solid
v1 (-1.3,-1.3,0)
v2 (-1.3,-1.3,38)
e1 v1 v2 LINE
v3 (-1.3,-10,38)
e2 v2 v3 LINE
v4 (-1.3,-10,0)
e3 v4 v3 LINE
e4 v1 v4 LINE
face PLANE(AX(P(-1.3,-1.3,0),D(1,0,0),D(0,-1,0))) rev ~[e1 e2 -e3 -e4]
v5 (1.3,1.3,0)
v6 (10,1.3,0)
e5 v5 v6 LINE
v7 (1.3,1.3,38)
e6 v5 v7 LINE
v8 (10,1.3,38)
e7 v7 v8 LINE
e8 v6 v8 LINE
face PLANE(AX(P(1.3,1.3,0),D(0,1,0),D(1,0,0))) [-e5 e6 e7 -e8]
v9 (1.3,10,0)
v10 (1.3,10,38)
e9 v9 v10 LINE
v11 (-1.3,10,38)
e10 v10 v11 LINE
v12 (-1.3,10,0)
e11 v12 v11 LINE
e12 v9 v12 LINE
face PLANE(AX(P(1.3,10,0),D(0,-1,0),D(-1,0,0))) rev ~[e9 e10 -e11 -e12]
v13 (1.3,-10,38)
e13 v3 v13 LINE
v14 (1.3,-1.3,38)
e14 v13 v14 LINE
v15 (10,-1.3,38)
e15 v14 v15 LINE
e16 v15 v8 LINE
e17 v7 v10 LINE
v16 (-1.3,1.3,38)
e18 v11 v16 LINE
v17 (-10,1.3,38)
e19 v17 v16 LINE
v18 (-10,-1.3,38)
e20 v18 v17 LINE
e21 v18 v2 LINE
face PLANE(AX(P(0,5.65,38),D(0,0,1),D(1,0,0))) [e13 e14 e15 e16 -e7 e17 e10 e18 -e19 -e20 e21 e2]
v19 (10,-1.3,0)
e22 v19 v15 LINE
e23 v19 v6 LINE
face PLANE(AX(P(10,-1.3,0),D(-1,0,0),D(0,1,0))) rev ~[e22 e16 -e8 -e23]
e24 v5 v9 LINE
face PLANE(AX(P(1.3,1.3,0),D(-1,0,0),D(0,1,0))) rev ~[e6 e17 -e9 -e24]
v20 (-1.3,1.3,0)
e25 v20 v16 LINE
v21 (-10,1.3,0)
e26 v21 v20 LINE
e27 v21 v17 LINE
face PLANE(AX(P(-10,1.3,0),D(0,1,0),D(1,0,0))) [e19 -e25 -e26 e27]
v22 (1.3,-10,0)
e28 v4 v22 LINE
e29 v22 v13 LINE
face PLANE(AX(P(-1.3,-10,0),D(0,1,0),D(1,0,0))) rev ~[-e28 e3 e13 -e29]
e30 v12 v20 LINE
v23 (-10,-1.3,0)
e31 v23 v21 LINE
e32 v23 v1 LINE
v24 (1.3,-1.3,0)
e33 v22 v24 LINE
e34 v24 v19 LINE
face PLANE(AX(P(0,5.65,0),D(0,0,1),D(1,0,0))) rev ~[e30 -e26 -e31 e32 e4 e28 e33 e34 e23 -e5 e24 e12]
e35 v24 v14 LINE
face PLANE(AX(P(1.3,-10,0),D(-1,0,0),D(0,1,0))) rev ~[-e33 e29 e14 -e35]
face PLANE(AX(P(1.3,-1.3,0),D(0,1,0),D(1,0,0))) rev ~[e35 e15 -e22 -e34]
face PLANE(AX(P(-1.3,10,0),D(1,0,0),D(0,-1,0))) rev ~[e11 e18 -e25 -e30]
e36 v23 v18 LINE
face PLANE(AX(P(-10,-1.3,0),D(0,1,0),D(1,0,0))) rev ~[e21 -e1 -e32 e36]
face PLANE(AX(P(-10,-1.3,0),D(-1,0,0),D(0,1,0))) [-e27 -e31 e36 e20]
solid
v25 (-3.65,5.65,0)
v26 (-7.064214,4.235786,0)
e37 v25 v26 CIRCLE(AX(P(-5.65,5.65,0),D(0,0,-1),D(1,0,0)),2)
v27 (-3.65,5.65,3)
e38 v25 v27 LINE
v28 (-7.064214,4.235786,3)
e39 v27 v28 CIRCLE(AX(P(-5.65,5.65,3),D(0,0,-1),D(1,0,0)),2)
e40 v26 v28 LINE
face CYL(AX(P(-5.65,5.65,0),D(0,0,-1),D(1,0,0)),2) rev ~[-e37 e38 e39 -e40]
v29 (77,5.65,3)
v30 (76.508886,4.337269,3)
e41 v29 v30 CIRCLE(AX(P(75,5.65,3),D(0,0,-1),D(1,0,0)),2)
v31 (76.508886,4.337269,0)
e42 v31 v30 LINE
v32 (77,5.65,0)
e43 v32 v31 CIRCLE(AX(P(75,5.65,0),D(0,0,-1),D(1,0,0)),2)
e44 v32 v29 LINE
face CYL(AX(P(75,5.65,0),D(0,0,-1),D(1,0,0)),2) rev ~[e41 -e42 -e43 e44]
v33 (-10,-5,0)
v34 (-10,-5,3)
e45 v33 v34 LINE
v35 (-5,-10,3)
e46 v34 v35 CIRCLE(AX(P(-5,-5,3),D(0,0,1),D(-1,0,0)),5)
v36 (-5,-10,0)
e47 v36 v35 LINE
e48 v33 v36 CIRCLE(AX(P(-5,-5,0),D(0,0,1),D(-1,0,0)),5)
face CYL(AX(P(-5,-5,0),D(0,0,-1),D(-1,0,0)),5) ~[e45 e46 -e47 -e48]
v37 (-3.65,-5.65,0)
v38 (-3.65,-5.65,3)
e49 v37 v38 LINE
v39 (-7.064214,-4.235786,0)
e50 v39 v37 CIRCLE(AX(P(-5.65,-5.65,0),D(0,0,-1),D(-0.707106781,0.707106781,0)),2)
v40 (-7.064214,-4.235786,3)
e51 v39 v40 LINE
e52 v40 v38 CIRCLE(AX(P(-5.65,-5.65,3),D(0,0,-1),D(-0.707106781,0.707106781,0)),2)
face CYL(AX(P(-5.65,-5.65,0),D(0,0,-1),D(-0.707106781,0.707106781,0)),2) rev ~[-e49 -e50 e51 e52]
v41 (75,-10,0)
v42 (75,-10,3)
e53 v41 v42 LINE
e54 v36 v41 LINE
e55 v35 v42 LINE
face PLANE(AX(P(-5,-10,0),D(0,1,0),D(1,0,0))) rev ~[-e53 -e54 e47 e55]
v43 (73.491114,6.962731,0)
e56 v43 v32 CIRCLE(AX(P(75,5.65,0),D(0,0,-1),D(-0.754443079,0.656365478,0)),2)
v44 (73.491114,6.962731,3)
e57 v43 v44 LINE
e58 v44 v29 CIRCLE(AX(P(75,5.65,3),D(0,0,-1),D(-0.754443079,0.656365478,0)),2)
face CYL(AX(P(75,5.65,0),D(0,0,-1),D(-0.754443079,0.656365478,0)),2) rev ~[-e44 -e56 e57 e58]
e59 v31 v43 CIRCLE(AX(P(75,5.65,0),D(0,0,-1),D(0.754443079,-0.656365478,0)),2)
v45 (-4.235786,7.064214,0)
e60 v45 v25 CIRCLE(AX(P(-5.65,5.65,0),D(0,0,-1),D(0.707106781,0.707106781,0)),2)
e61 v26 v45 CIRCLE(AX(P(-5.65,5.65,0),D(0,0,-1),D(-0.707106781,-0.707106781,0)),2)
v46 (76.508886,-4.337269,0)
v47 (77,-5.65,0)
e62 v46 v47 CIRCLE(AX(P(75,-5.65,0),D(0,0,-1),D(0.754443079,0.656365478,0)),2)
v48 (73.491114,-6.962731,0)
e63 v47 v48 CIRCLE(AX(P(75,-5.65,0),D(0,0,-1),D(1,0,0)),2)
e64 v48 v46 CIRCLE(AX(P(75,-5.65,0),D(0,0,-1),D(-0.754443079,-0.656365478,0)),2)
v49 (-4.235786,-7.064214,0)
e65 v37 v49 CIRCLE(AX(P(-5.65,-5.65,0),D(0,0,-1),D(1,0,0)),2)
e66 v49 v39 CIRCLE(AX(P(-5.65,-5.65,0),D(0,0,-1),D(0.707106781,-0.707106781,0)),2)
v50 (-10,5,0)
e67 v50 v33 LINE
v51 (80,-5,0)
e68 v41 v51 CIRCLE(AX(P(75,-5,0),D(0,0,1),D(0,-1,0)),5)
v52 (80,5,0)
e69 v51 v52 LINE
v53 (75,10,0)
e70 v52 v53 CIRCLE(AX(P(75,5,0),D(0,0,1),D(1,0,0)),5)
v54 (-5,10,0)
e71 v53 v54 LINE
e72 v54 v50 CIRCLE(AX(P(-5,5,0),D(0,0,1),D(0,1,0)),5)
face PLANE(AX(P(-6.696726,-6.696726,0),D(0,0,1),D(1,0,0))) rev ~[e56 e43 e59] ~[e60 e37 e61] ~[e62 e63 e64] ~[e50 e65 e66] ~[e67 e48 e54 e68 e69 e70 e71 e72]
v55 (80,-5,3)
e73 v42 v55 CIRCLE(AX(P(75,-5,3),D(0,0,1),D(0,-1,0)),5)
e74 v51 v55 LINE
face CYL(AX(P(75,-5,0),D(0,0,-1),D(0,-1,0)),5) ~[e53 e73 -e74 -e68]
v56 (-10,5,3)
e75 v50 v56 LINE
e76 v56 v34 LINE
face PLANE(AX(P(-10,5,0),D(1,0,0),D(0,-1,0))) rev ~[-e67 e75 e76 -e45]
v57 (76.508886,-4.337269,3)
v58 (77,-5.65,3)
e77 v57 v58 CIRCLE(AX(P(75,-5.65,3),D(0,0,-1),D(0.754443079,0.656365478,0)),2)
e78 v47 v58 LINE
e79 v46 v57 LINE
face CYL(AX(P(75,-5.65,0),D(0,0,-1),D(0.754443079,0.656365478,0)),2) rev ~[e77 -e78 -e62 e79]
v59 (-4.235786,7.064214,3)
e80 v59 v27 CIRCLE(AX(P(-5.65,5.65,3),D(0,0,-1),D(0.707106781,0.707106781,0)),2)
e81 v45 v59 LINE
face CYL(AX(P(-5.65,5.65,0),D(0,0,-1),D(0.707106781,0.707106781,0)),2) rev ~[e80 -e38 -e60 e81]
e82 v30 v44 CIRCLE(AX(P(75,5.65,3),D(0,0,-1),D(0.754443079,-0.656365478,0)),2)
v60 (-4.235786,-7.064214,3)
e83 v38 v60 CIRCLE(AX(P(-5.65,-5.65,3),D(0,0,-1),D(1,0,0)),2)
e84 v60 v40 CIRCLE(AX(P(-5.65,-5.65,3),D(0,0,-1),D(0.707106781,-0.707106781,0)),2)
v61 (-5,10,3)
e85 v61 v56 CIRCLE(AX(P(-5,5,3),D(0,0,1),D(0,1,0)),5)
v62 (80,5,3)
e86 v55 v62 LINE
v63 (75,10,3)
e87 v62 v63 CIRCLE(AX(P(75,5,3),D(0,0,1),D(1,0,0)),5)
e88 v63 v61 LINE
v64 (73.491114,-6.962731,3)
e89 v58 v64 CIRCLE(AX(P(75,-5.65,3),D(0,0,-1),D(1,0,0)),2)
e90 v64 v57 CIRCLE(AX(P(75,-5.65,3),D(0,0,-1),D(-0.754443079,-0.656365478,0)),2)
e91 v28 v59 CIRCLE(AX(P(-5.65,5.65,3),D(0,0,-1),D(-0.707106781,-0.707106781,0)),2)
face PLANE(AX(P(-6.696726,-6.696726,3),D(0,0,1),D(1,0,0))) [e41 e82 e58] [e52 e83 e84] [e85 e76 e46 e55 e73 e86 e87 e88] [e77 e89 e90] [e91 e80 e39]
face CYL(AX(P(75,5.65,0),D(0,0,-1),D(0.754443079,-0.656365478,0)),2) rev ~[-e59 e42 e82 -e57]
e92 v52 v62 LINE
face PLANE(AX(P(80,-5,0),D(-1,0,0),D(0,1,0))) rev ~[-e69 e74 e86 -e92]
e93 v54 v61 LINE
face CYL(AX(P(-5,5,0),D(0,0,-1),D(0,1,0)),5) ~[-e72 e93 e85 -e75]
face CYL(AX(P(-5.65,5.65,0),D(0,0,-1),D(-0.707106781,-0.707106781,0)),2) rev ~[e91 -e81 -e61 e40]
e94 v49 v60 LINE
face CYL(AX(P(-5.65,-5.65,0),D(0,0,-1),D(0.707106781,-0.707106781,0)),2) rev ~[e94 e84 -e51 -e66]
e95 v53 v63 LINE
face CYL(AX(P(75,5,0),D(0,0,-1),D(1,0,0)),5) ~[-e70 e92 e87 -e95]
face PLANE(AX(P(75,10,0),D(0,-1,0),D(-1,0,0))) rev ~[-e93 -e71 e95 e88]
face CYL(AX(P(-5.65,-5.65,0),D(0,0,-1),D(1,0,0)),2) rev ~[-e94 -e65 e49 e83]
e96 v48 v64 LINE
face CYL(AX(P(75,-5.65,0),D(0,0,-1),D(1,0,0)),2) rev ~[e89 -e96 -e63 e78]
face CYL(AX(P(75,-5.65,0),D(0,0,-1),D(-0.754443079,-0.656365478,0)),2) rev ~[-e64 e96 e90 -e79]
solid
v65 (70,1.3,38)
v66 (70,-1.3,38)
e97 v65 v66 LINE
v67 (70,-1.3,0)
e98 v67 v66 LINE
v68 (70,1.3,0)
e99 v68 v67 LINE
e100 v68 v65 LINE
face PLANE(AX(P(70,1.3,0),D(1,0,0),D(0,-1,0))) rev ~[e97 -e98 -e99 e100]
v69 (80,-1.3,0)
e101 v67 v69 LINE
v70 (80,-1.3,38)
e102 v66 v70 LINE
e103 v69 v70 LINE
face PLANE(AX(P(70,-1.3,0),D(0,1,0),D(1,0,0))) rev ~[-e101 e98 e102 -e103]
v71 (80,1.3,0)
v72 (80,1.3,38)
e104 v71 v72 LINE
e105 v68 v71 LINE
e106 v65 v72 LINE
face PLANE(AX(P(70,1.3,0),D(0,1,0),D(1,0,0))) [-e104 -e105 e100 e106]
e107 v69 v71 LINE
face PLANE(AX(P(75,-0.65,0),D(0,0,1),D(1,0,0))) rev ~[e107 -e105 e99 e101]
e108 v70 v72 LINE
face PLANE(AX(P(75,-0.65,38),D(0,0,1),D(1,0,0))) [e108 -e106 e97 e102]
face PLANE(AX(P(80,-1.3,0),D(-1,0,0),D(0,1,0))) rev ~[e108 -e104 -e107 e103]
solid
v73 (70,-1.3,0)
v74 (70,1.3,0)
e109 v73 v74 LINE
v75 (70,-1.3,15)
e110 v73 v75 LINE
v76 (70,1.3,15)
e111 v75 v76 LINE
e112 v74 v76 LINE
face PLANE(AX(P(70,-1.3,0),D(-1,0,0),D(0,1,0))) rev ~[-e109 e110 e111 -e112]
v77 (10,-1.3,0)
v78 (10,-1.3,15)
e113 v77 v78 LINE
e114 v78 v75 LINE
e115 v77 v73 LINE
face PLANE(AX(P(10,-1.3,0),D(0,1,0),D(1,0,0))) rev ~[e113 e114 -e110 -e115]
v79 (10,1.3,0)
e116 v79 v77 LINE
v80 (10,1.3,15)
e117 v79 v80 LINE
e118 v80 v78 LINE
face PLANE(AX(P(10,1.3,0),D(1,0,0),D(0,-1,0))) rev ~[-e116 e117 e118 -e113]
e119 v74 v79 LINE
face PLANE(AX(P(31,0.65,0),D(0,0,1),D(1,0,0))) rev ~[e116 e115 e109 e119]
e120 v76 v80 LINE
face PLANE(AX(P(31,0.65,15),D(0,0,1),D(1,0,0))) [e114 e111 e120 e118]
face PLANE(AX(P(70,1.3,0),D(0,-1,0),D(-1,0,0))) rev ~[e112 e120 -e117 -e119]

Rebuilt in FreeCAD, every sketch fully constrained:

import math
import FreeCAD as App
import Part
import Sketcher

V = App.Vector

doc = App.newDocument("Part")
body = doc.addObject("PartDesign::Body", "Body")

sketch1 = body.newObject("Sketcher::SketchObject", "Sketch")
sketch1.AttachmentSupport = (doc.getObject("XY_Plane"), [""])
sketch1.MapMode = "FlatFace"
sketch1.addGeometry([
    Part.LineSegment(V(70, -1.3, 0), V(80, -1.3, 0)),
    Part.LineSegment(V(80, -1.3, 0), V(80, 1.3, 0)),
    Part.LineSegment(V(80, 1.3, 0), V(70, 1.3, 0)),
    Part.LineSegment(V(70, 1.3, 0), V(70, -1.3, 0)),
], False)
sketch1.addConstraint([
    Sketcher.Constraint("Coincident", 0, 2, 1, 1),
    Sketcher.Constraint("Coincident", 1, 2, 2, 1),
    Sketcher.Constraint("Coincident", 2, 2, 3, 1),
    Sketcher.Constraint("Coincident", 3, 2, 0, 1),
    Sketcher.Constraint("Horizontal", 0),
    Sketcher.Constraint("Vertical", 1),
    Sketcher.Constraint("Horizontal", 2),
    Sketcher.Constraint("Vertical", 3),
    Sketcher.Constraint("DistanceX", 0, 1, 0, 2, 10.0),
    Sketcher.Constraint("DistanceY", 1, 1, 1, 2, 2.6),
    Sketcher.Constraint("DistanceX", -1, 1, 0, 2, 80.0),
    Sketcher.Constraint("DistanceY", 0, 2, -1, 1, 1.3),
])
pad1 = body.newObject("PartDesign::Pad", "Pad")
pad1.Profile = sketch1
pad1.Length = 38
body2 = doc.addObject("PartDesign::Body", "Body001")

sketch2 = body2.newObject("Sketcher::SketchObject", "Sketch001")
sketch2.AttachmentSupport = (doc.getObject("XY_Plane001"), [""])
sketch2.MapMode = "FlatFace"
sketch2.addGeometry([
    Part.LineSegment(V(1.3, 1.3, 0), V(1.3, 10, 0)),
    Part.LineSegment(V(1.3, 10, 0), V(-1.3, 10, 0)),
    Part.LineSegment(V(-1.3, 10, 0), V(-1.3, 1.3, 0)),
    Part.LineSegment(V(-1.3, 1.3, 0), V(-10, 1.3, 0)),
    Part.LineSegment(V(-10, 1.3, 0), V(-10, -1.3, 0)),
    Part.LineSegment(V(-10, -1.3, 0), V(-1.3, -1.3, 0)),
    Part.LineSegment(V(-1.3, -1.3, 0), V(-1.3, -10, 0)),
    Part.LineSegment(V(-1.3, -10, 0), V(1.3, -10, 0)),
    Part.LineSegment(V(1.3, -10, 0), V(1.3, -1.3, 0)),
    Part.LineSegment(V(1.3, -1.3, 0), V(10, -1.3, 0)),
    Part.LineSegment(V(10, -1.3, 0), V(10, 1.3, 0)),
    Part.LineSegment(V(10, 1.3, 0), V(1.3, 1.3, 0)),
], False)
sketch2.addConstraint([
    Sketcher.Constraint("Coincident", 0, 2, 1, 1),
    Sketcher.Constraint("Coincident", 1, 2, 2, 1),
    Sketcher.Constraint("Coincident", 2, 2, 3, 1),
    Sketcher.Constraint("Coincident", 3, 2, 4, 1),
    Sketcher.Constraint("Coincident", 4, 2, 5, 1),
    Sketcher.Constraint("Coincident", 5, 2, 6, 1),
    Sketcher.Constraint("Coincident", 6, 2, 7, 1),
    Sketcher.Constraint("Coincident", 7, 2, 8, 1),
    Sketcher.Constraint("Coincident", 8, 2, 9, 1),
    Sketcher.Constraint("Coincident", 9, 2, 10, 1),
    Sketcher.Constraint("Coincident", 10, 2, 11, 1),
    Sketcher.Constraint("Coincident", 11, 2, 0, 1),
    Sketcher.Constraint("Vertical", 0),
    Sketcher.Constraint("Horizontal", 1),
    Sketcher.Constraint("Vertical", 2),
    Sketcher.Constraint("Horizontal", 3),
    Sketcher.Constraint("Vertical", 4),
    Sketcher.Constraint("Horizontal", 5),
    Sketcher.Constraint("Vertical", 6),
    Sketcher.Constraint("Horizontal", 7),
    Sketcher.Constraint("Vertical", 8),
    Sketcher.Constraint("Horizontal", 9),
    Sketcher.Constraint("Vertical", 10),
    Sketcher.Constraint("Horizontal", 11),
    Sketcher.Constraint("Symmetric", 0, 2, 6, 2, -1, 1),
    Sketcher.Constraint("Symmetric", 2, 2, 8, 2, -1, 1),
    Sketcher.Constraint("Symmetric", 4, 2, 10, 2, -1, 1),
    Sketcher.Constraint("Symmetric", 5, 2, 8, 2, -2),
    Sketcher.Constraint("Equal", 11, 0),
    Sketcher.Constraint("Equal", 7, 4),
    Sketcher.Constraint("DistanceX", 1, 2, 1, 1, 2.6),
    Sketcher.Constraint("DistanceX", 3, 2, 3, 1, 8.7),
])
pad2 = body2.newObject("PartDesign::Pad", "Pad001")
pad2.Profile = sketch2
pad2.Length = 38
body3 = doc.addObject("PartDesign::Body", "Body002")

sketch3 = body3.newObject("Sketcher::SketchObject", "Sketch002")
sketch3.AttachmentSupport = (doc.getObject("XY_Plane002"), [""])
sketch3.MapMode = "FlatFace"
sketch3.addGeometry([
    Part.LineSegment(V(-5, -10, 0), V(75, -10, 0)),
    Part.ArcOfCircle(Part.Circle(V(75, -5, 0), V(0, 0, 1), 5), math.radians(-90), math.radians(0)),
    Part.LineSegment(V(80, -5, 0), V(80, 5, 0)),
    Part.ArcOfCircle(Part.Circle(V(75, 5, 0), V(0, 0, 1), 5), math.radians(0), math.radians(90)),
    Part.LineSegment(V(75, 10, 0), V(-5, 10, 0)),
    Part.ArcOfCircle(Part.Circle(V(-5, 5, 0), V(0, 0, 1), 5), math.radians(90), math.radians(180)),
    Part.LineSegment(V(-10, 5, 0), V(-10, -5, 0)),
    Part.ArcOfCircle(Part.Circle(V(-5, -5, 0), V(0, 0, 1), 5), math.radians(180), math.radians(270)),
    Part.ArcOfCircle(Part.Circle(V(-5.7, -5.7, 0), V(0, 0, 1), 2), math.radians(135), math.radians(315)),
    Part.ArcOfCircle(Part.Circle(V(-5.7, -5.7, 0), V(0, 0, 1), 2), math.radians(0), math.radians(135)),
    Part.ArcOfCircle(Part.Circle(V(-5.7, -5.7, 0), V(0, 0, 1), 2), math.radians(-45), math.radians(0)),
    Part.ArcOfCircle(Part.Circle(V(75, -5.7, 0), V(0, 0, 1), 2), math.radians(-139), math.radians(0)),
    Part.ArcOfCircle(Part.Circle(V(75, -5.7, 0), V(0, 0, 1), 2), math.radians(41), math.radians(221)),
    Part.ArcOfCircle(Part.Circle(V(75, -5.7, 0), V(0, 0, 1), 2), math.radians(0), math.radians(41)),
    Part.ArcOfCircle(Part.Circle(V(-5.7, 5.7, 0), V(0, 0, 1), 2), math.radians(-135), math.radians(0)),
    Part.ArcOfCircle(Part.Circle(V(-5.7, 5.7, 0), V(0, 0, 1), 2), math.radians(45), math.radians(225)),
    Part.ArcOfCircle(Part.Circle(V(-5.7, 5.7, 0), V(0, 0, 1), 2), math.radians(0), math.radians(45)),
    Part.ArcOfCircle(Part.Circle(V(75, 5.7, 0), V(0, 0, 1), 2), math.radians(0), math.radians(139)),
    Part.ArcOfCircle(Part.Circle(V(75, 5.7, 0), V(0, 0, 1), 2), math.radians(-41), math.radians(0)),
    Part.ArcOfCircle(Part.Circle(V(75, 5.7, 0), V(0, 0, 1), 2), math.radians(139), math.radians(319)),
], False)
sketch3.addConstraint([
    Sketcher.Constraint("Tangent", 0, 2, 1, 1),
    Sketcher.Constraint("Tangent", 1, 2, 2, 1),
    Sketcher.Constraint("Tangent", 2, 2, 3, 1),
    Sketcher.Constraint("Tangent", 3, 2, 4, 1),
    Sketcher.Constraint("Tangent", 4, 2, 5, 1),
    Sketcher.Constraint("Tangent", 5, 2, 6, 1),
    Sketcher.Constraint("Tangent", 6, 2, 7, 1),
    Sketcher.Constraint("Tangent", 7, 2, 0, 1),
    Sketcher.Constraint("Tangent", 8, 1, 9, 2),
    Sketcher.Constraint("Tangent", 9, 1, 10, 2),
    Sketcher.Constraint("Tangent", 10, 1, 8, 2),
    Sketcher.Constraint("Tangent", 11, 1, 12, 2),
    Sketcher.Constraint("Tangent", 12, 1, 13, 2),
    Sketcher.Constraint("Tangent", 13, 1, 11, 2),
    Sketcher.Constraint("Tangent", 14, 1, 15, 2),
    Sketcher.Constraint("Tangent", 15, 1, 16, 2),
    Sketcher.Constraint("Tangent", 16, 1, 14, 2),
    Sketcher.Constraint("Tangent", 17, 1, 18, 2),
    Sketcher.Constraint("Tangent", 18, 1, 19, 2),
    Sketcher.Constraint("Tangent", 19, 1, 17, 2),
    Sketcher.Constraint("Horizontal", 0),
    Sketcher.Constraint("Vertical", 2),
    Sketcher.Constraint("Horizontal", 4),
    Sketcher.Constraint("Vertical", 6),
    Sketcher.Constraint("Equal", 1, 3),
    Sketcher.Constraint("Equal", 3, 5),
    Sketcher.Constraint("Equal", 5, 7),
    Sketcher.Constraint("Equal", 10, 11),
    Sketcher.Constraint("Equal", 13, 14),
    Sketcher.Constraint("Equal", 16, 17),
    Sketcher.Constraint("Symmetric", 8, 3, 14, 3, -1),
    Sketcher.Constraint("Symmetric", 11, 3, 17, 3, -1),
    Sketcher.Constraint("Horizontal", 10, 3, 11, 3),
    Sketcher.Constraint("Horizontal", 13, 3, 9, 1),
    Sketcher.Constraint("Horizontal", 9, 1, 13, 1),
    Sketcher.Constraint("Horizontal", 19, 3, 16, 1),
    Sketcher.Constraint("Horizontal", 16, 1, 17, 1),
    Sketcher.Constraint("Vertical", 3, 3, 11, 3),
    Sketcher.Constraint("Vertical", 8, 1, 14, 1),
    Sketcher.Constraint("Vertical", 10, 1, 15, 1),
    Sketcher.Constraint("Vertical", 12, 1, 18, 1),
    Sketcher.Constraint("Vertical", 11, 1, 19, 1),
    Sketcher.Constraint("Radius", 1, 5.0),
    Sketcher.Constraint("Radius", 8, 2.0),
    Sketcher.Constraint("DistanceX", 0, 1, 0, 2, 80.0),
    Sketcher.Constraint("DistanceY", 2, 1, 2, 2, 10.0),
    Sketcher.Constraint("DistanceX", -1, 1, 1, 3, 75.0),
    Sketcher.Constraint("DistanceY", 1, 3, -1, 1, 5.0),
    Sketcher.Constraint("DistanceY", 8, 3, 14, 3, 11.3),
    Sketcher.Constraint("DistanceX", 8, 3, -1, 1, 5.65),
    Sketcher.Constraint("DistanceY", 11, 1, -1, 1, 6.962731),
    Sketcher.Constraint("DistanceY", 12, 1, -1, 1, 4.337269),
    Sketcher.Constraint("DistanceX", 8, 1, -1, 1, 7.064214),
    Sketcher.Constraint("DistanceX", 10, 1, -1, 1, 4.235786),
])
pad3 = body3.newObject("PartDesign::Pad", "Pad002")
pad3.Profile = sketch3
pad3.Length = 3
body4 = doc.addObject("PartDesign::Body", "Body003")

sketch4 = body4.newObject("Sketcher::SketchObject", "Sketch003")
sketch4.AttachmentSupport = (doc.getObject("XY_Plane003"), [""])
sketch4.MapMode = "FlatFace"
sketch4.addGeometry([
    Part.LineSegment(V(10, 1.3, 0), V(10, -1.3, 0)),
    Part.LineSegment(V(10, -1.3, 0), V(70, -1.3, 0)),
    Part.LineSegment(V(70, -1.3, 0), V(70, 1.3, 0)),
    Part.LineSegment(V(70, 1.3, 0), V(10, 1.3, 0)),
], False)
sketch4.addConstraint([
    Sketcher.Constraint("Coincident", 0, 2, 1, 1),
    Sketcher.Constraint("Coincident", 1, 2, 2, 1),
    Sketcher.Constraint("Coincident", 2, 2, 3, 1),
    Sketcher.Constraint("Coincident", 3, 2, 0, 1),
    Sketcher.Constraint("Vertical", 0),
    Sketcher.Constraint("Horizontal", 1),
    Sketcher.Constraint("Vertical", 2),
    Sketcher.Constraint("Horizontal", 3),
    Sketcher.Constraint("DistanceX", 1, 1, 1, 2, 60.0),
    Sketcher.Constraint("DistanceY", 0, 2, 0, 1, 2.6),
    Sketcher.Constraint("DistanceX", -1, 1, 0, 2, 10.0),
    Sketcher.Constraint("DistanceY", 0, 2, -1, 1, 1.3),
])
pad4 = body4.newObject("PartDesign::Pad", "Pad003")
pad4.Profile = sketch4
pad4.Length = 15

doc.recompute()
